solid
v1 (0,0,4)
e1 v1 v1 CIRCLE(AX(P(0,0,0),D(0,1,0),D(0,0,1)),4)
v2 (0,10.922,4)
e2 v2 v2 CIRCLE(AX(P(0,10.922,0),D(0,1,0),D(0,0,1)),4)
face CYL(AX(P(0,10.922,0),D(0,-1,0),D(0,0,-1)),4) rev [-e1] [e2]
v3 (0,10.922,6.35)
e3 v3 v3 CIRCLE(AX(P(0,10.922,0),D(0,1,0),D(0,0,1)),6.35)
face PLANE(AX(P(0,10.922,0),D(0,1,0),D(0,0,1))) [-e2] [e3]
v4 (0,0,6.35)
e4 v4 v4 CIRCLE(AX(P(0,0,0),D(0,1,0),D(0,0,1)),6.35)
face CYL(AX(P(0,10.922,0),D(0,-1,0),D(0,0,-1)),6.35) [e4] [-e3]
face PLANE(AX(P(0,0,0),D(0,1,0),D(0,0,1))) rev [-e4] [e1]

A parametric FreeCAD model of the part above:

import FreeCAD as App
import Part
import Sketcher
from FreeCAD import Vector
Q = App.Units.Quantity

doc = App.newDocument("Part")
body = doc.addObject("PartDesign::Body", "Body")

# Sketch on XZ plane
sketch1 = body.newObject("Sketcher::SketchObject", "Sketch")
sketch1.AttachmentSupport = (doc.getObject("XZ_Plane"), [""])
sketch1.MapMode = "FlatFace"
sketch1.addGeometry(Part.Circle(Vector(0, 0, 0), Vector(0, 0, 1), 6.35), False)
sketch1.addGeometry(Part.Circle(Vector(0, 0, 0), Vector(0, 0, 1), 4), False)
sketch1.addConstraint(Sketcher.Constraint("Coincident", 0, 3, -1, 1))
sketch1.addConstraint(Sketcher.Constraint("Coincident", 1, 3, -1, 1))
sketch1.addConstraint(Sketcher.Constraint("Diameter", 0, Q("0.5 in")))
sketch1.addConstraint(Sketcher.Constraint("Diameter", 1, 8.0))
pad1 = body.newObject("PartDesign::Pad", "Pad")
pad1.Profile = sketch1
pad1.Length = Q("0.43 in")
pad1.Reversed = True

doc.recompute()
